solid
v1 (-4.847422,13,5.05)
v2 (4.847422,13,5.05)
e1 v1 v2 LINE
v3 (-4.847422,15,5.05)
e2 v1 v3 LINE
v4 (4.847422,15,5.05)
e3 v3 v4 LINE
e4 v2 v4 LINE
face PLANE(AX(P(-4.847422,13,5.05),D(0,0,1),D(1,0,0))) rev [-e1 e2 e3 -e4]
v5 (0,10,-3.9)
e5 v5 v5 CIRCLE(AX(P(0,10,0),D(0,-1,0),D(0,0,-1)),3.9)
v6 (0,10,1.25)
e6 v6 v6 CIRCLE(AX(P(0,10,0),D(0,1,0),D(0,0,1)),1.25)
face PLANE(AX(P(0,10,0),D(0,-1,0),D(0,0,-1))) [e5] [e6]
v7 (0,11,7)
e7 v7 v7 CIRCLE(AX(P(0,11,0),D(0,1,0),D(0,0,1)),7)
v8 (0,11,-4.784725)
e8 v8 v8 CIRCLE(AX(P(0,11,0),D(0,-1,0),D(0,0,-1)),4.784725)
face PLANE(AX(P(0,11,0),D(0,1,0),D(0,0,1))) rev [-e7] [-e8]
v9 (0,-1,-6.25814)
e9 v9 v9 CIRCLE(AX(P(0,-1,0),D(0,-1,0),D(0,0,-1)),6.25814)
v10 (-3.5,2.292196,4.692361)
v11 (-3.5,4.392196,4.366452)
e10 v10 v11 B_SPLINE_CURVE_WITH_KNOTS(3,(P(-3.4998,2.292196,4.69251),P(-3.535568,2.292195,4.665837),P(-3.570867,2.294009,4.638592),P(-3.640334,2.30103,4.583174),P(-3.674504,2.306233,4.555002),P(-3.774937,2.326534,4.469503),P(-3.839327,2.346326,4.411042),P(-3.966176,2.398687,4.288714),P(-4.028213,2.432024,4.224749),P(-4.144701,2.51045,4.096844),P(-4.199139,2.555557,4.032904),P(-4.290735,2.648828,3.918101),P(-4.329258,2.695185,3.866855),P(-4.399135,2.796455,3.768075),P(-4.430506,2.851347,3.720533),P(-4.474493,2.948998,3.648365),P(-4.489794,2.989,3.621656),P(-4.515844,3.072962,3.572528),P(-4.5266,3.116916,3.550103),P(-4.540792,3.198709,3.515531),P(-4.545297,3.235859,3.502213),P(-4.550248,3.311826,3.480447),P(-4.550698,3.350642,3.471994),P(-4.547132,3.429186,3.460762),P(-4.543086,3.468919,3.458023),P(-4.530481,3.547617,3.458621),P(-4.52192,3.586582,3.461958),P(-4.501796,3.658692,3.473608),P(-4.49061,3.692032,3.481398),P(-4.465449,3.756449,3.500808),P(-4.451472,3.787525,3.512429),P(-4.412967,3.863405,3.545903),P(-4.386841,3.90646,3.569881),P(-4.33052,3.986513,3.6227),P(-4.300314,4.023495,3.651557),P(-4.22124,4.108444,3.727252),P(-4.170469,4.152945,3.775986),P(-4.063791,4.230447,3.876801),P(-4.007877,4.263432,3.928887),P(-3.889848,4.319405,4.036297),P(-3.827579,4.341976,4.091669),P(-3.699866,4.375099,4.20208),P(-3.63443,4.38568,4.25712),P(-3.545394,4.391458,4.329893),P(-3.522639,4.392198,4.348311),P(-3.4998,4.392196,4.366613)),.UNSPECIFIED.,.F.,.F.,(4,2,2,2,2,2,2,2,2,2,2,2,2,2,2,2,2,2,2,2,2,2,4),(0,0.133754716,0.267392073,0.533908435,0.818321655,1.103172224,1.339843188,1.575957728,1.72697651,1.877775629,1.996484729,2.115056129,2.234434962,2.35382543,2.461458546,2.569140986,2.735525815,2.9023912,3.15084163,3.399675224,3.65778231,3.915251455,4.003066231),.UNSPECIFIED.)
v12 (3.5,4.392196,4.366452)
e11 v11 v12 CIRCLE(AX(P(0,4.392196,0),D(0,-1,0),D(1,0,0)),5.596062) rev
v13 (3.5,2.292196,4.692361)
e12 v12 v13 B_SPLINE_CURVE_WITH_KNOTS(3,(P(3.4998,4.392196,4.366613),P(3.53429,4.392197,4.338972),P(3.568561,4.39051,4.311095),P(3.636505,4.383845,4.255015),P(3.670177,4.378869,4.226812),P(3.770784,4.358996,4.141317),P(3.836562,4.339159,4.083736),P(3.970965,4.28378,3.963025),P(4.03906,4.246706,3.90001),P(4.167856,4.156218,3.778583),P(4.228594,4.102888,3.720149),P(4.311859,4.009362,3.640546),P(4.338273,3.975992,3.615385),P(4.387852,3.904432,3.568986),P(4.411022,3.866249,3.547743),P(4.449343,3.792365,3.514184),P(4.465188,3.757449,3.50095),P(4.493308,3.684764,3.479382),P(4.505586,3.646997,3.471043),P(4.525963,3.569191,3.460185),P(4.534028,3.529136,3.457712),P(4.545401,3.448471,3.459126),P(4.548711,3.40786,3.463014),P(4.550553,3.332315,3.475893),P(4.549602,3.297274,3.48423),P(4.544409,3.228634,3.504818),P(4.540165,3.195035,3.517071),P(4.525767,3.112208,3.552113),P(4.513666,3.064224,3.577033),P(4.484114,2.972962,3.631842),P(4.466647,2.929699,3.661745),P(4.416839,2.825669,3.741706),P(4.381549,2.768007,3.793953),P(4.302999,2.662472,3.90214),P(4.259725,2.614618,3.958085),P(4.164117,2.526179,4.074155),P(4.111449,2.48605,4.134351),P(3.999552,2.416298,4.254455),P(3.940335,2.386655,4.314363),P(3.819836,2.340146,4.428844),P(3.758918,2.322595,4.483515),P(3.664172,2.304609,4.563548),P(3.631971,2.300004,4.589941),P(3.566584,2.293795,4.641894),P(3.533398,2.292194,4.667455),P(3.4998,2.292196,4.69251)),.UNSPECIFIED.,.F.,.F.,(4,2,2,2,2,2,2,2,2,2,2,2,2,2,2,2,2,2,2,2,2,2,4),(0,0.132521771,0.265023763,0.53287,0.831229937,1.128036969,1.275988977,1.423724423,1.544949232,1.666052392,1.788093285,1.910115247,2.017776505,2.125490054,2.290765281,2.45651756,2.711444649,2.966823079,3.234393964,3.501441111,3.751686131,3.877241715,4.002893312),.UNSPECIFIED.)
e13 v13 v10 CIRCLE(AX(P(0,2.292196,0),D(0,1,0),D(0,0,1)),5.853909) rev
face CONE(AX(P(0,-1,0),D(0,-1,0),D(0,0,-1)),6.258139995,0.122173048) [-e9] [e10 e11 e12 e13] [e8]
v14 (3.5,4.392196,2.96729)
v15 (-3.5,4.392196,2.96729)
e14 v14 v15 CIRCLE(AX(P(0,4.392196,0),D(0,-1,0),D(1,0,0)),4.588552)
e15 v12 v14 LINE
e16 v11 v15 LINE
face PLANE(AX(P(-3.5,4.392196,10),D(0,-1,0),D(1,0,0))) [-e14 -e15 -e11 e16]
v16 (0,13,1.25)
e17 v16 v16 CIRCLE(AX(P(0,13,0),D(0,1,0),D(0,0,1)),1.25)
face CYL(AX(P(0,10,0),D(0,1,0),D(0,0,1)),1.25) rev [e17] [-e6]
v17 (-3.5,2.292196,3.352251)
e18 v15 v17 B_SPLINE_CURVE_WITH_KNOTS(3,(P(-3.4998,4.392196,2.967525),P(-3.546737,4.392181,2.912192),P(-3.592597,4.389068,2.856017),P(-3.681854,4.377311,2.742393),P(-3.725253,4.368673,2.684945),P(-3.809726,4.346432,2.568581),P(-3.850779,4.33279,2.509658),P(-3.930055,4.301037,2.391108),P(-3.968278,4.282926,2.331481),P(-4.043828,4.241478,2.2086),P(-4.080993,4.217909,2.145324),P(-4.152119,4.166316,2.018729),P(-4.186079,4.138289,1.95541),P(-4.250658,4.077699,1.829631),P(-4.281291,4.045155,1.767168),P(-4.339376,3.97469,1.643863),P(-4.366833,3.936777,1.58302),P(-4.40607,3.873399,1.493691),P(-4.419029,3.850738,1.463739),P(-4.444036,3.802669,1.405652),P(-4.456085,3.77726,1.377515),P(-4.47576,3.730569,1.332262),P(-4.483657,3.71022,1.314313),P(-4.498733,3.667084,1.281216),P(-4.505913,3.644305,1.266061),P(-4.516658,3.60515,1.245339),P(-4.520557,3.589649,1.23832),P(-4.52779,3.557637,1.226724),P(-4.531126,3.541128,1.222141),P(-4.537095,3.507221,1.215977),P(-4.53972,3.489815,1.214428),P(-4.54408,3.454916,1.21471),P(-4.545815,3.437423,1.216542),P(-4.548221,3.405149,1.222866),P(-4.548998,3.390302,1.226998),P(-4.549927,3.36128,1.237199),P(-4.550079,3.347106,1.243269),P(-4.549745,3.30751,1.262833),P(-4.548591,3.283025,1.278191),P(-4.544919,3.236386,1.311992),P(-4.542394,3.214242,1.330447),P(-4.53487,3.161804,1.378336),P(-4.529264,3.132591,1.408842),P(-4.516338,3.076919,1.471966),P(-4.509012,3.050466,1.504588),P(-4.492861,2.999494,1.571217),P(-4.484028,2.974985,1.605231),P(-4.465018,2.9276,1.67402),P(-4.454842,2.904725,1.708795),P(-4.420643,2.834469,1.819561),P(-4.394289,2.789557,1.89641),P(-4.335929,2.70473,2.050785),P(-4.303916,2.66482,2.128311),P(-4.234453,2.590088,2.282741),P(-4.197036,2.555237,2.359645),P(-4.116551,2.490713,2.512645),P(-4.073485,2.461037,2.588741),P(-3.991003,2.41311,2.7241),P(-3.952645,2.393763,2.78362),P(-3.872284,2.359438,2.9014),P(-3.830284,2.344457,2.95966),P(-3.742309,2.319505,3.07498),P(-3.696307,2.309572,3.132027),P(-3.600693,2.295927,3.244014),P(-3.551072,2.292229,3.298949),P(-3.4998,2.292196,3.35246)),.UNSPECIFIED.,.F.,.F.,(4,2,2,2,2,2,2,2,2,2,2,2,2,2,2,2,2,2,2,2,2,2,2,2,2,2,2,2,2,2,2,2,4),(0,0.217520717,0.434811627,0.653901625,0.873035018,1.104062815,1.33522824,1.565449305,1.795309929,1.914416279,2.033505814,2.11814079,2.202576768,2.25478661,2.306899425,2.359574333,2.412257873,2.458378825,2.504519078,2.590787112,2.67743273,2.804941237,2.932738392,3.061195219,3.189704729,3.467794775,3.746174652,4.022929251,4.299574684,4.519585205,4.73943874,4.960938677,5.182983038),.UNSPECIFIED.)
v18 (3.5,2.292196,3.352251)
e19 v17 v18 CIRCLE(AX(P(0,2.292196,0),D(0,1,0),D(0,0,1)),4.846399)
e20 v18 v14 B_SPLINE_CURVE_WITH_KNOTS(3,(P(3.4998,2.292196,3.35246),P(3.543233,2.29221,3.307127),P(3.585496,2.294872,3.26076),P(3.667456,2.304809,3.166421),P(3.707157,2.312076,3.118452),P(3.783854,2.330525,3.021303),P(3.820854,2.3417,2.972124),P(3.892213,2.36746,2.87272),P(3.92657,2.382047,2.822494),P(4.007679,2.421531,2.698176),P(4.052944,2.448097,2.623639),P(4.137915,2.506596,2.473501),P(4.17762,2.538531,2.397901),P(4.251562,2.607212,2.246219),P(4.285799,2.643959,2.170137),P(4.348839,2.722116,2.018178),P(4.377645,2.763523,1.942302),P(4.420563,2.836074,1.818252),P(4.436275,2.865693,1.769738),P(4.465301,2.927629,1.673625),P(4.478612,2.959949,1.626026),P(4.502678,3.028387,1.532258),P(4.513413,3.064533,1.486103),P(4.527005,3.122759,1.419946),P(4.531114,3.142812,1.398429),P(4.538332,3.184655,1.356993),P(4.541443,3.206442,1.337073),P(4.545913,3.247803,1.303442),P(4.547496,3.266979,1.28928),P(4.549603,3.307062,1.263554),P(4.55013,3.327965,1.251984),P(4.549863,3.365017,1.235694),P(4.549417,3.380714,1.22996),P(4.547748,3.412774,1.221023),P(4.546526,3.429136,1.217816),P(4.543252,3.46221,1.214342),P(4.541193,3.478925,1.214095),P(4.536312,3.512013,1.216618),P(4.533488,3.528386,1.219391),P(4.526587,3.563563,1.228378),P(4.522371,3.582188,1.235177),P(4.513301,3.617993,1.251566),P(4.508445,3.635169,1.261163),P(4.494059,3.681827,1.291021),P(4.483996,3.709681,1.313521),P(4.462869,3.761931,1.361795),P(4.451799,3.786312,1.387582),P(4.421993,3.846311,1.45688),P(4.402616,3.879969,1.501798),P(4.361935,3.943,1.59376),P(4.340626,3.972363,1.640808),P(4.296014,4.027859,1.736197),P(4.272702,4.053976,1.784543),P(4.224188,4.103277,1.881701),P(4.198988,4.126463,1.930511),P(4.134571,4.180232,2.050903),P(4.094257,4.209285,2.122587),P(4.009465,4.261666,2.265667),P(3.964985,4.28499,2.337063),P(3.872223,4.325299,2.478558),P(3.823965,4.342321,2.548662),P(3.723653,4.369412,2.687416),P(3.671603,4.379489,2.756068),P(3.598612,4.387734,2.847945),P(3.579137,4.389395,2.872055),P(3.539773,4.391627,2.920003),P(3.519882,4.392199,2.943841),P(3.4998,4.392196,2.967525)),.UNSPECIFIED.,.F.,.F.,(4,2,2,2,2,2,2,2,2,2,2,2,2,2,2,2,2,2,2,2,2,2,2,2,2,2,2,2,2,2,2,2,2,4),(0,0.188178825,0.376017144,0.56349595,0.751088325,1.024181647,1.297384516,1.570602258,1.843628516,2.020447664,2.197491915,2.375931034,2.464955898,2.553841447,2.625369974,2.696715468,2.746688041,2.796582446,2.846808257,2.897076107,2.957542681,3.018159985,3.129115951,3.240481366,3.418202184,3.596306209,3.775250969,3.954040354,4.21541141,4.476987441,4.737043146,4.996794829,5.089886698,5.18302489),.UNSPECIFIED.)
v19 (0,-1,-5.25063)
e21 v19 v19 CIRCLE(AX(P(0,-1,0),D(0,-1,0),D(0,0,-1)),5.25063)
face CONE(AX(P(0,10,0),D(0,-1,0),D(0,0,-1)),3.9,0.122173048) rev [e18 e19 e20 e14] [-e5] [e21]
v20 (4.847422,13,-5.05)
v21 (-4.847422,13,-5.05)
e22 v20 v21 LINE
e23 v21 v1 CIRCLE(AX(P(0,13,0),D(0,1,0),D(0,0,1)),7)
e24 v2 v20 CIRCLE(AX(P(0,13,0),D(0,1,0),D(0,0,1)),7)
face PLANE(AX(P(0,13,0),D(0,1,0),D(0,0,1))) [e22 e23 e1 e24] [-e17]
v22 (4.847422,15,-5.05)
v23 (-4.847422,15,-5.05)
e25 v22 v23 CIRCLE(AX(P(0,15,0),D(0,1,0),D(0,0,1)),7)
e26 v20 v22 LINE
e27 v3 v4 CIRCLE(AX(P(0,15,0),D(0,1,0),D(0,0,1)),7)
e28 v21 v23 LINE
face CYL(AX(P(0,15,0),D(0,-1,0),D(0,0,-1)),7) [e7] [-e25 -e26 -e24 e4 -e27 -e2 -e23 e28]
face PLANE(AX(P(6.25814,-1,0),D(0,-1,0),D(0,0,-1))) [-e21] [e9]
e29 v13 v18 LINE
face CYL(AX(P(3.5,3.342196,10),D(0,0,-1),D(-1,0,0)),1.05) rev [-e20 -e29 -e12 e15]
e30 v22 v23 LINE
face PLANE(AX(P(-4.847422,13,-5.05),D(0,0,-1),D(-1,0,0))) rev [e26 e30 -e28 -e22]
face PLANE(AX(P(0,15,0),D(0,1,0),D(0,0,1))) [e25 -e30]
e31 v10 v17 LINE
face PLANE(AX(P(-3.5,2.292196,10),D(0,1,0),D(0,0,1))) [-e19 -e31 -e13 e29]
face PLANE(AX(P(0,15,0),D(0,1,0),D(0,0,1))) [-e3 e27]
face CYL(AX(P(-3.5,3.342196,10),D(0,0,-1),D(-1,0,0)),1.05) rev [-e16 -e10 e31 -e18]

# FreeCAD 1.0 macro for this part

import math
import FreeCAD as App
import Part
import Sketcher
Q = App.Units.Quantity


def add_polygon(sketch, points):
    """Adds a closed chain of lines whose ends are joined by coincident constraints."""
    first, n = sketch.GeometryCount, len(points)
    for a, b in zip(points, points[1:] + points[:1]):
        sketch.addGeometry(Part.LineSegment(App.Vector(*a, 0), App.Vector(*b, 0)), False)
    for i in range(n):
        sketch.addConstraint(Sketcher.Constraint("Coincident", first + i, 2, first + (i + 1) % n, 1))

doc = App.newDocument("Part")
body = doc.addObject("PartDesign::Body", "Body")

# Sketch on XY plane
sketch1 = body.newObject("Sketcher::SketchObject", "Sketch")
sketch1.AttachmentSupport = (doc.getObject("XY_Plane"), [""])
sketch1.MapMode = "FlatFace"
add_polygon(sketch1, [(0, 10), (3.9, 10), (5.1, 0), (5.3, -1), (6.3, -1), (4.8, 11), (0, 11)])  # lines 0-6
sketch1.addConstraint([
    Sketcher.Constraint("Horizontal", 0),
    Sketcher.Constraint("Horizontal", 3),
    Sketcher.Constraint("Horizontal", 5),
    Sketcher.Constraint("Vertical", 6),
    Sketcher.Constraint("PointOnObject", 1, 2, -1),
    Sketcher.Constraint("PointOnObject", 5, 2, -2),
    Sketcher.Constraint("Parallel", 1, 2),
    Sketcher.Constraint("Parallel", 2, 4),
    Sketcher.Constraint("DistanceY", 6, 2, 6, 1, 1.0),
    Sketcher.Constraint("Angle", 1, Q("-83 deg")),
    Sketcher.Constraint("DistanceX", 0, 1, 0, 2, 3.9),
    Sketcher.Constraint("DistanceY", -1, 1, 0, 2, 10.0),
    Sketcher.Constraint("DistanceY", 2, 2, -1, 1, 1.0),
    Sketcher.Constraint("DistanceX", 3, 1, 3, 2, 1.00751),
])
revolution = body.newObject("PartDesign::Revolution", "Revolution")
revolution.Profile = sketch1
revolution.ReferenceAxis = (sketch1, ["V_Axis"])
revolution.Angle = 360

# Sketch on XZ plane
sketch2 = body.newObject("Sketcher::SketchObject", "Sketch001")
sketch2.AttachmentSupport = (doc.getObject("XZ_Plane"), [""])
sketch2.MapMode = "FlatFace"
sketch2.AttachmentOffset = App.Placement(App.Vector(0, 0, -11), App.Rotation())
sketch2.addGeometry(Part.Circle(App.Vector(0, 0, 0), App.Vector(0, 0, 1), 7), False)
sketch2.addConstraint([
    Sketcher.Constraint("Coincident", 0, 3, -1, 1),
    Sketcher.Constraint("Diameter", 0, 14.0),
])
pad1 = body.newObject("PartDesign::Pad", "Pad")
pad1.Profile = sketch2
pad1.Length = 4
pad1.Reversed = True

# Sketch on XZ plane
sketch3 = body.newObject("Sketcher::SketchObject", "Sketch002")
sketch3.AttachmentSupport = (doc.getObject("XZ_Plane"), [""])
sketch3.MapMode = "FlatFace"
sketch3.AttachmentOffset = App.Placement(App.Vector(0, 0, -15), App.Rotation())
sketch3.addGeometry([
    Part.LineSegment(App.Vector(5, -5, 0), App.Vector(-5, -5, 0)),
    Part.ArcOfCircle(Part.Circle(App.Vector(0, 0, 0), App.Vector(0, 0, 1), 7), math.radians(134), math.radians(226)),
    Part.LineSegment(App.Vector(-5, 5, 0), App.Vector(5, 5, 0)),
    Part.ArcOfCircle(Part.Circle(App.Vector(0, 0, 0), App.Vector(0, 0, 1), 7), math.radians(-46), math.radians(46)),
], False)
sketch3.addConstraint([
    Sketcher.Constraint("Coincident", 0, 2, 1, 2),
    Sketcher.Constraint("Coincident", 1, 1, 2, 1),
    Sketcher.Constraint("Coincident", 2, 2, 3, 2),
    Sketcher.Constraint("Coincident", 3, 1, 0, 1),
    Sketcher.Constraint("Horizontal", 0),
    Sketcher.Constraint("Horizontal", 2),
    Sketcher.Constraint("Coincident", 1, 3, -1, 1),
    Sketcher.Constraint("Coincident", 3, 3, -1, 1),
    Sketcher.Constraint("Equal", 1, 3),
    Sketcher.Constraint("Vertical", 0, 2, 1, 1),
    Sketcher.Constraint("Radius", 1, 7.0),
    Sketcher.Constraint("DistanceY", 0, 2, 1, 1, 10.1),
])
pocket1 = body.newObject("PartDesign::Pocket", "Pocket")
pocket1.Profile = sketch3
pocket1.Length = 2
pocket1.Reversed = True

# Sketch on XZ plane
sketch4 = body.newObject("Sketcher::SketchObject", "Sketch003")
sketch4.AttachmentSupport = (doc.getObject("XZ_Plane"), [""])
sketch4.MapMode = "FlatFace"
sketch4.AttachmentOffset = App.Placement(App.Vector(0, 0, -13), App.Rotation())
sketch4.addGeometry(Part.Circle(App.Vector(0, 0, 0), App.Vector(0, 0, 1), 1.2), False)
sketch4.addConstraint([
    Sketcher.Constraint("Coincident", 0, 3, -1, 1),
    Sketcher.Constraint("Diameter", 0, 2.5),
])
pocket2 = body.newObject("PartDesign::Pocket", "Pocket001")
pocket2.Profile = sketch4
pocket2.Length = 3
pocket2.Reversed = True

# Sketch on XY plane
sketch5 = body.newObject("Sketcher::SketchObject", "Sketch004")
sketch5.AttachmentSupport = (doc.getObject("XY_Plane"), [""])
sketch5.MapMode = "FlatFace"
sketch5.addGeometry([
    Part.LineSegment(App.Vector(3.5, 4.4, 0), App.Vector(-3.5, 4.4, 0)),
    Part.ArcOfCircle(Part.Circle(App.Vector(-3.5, 3.3, 0), App.Vector(0, 0, 1), 1.1), math.radians(90), math.radians(270)),
    Part.LineSegment(App.Vector(-3.5, 2.3, 0), App.Vector(3.5, 2.3, 0)),
    Part.ArcOfCircle(Part.Circle(App.Vector(3.5, 3.3, 0), App.Vector(0, 0, 1), 1.1), math.radians(-90), math.radians(90)),
], False)
sketch5.addConstraint([
    Sketcher.Constraint("Tangent", 0, 2, 1, 1),
    Sketcher.Constraint("Tangent", 1, 2, 2, 1),
    Sketcher.Constraint("Tangent", 2, 2, 3, 1),
    Sketcher.Constraint("Tangent", 3, 2, 0, 1),
    Sketcher.Constraint("Horizontal", 0),
    Sketcher.Constraint("Horizontal", 2),
    Sketcher.Constraint("DistanceX", 0, 2, 0, 1, 7.0),
    Sketcher.Constraint("Radius", 1, 1.05),
    Sketcher.Constraint("DistanceX", 1, 3, -1, 1, 3.5),
    Sketcher.Constraint("DistanceY", -1, 1, 1, 3, 3.342196),
])
pocket3 = body.newObject("PartDesign::Pocket", "Pocket002")
pocket3.Profile = sketch5
pocket3.Length = 10
pocket3.Reversed = True

doc.recompute()
